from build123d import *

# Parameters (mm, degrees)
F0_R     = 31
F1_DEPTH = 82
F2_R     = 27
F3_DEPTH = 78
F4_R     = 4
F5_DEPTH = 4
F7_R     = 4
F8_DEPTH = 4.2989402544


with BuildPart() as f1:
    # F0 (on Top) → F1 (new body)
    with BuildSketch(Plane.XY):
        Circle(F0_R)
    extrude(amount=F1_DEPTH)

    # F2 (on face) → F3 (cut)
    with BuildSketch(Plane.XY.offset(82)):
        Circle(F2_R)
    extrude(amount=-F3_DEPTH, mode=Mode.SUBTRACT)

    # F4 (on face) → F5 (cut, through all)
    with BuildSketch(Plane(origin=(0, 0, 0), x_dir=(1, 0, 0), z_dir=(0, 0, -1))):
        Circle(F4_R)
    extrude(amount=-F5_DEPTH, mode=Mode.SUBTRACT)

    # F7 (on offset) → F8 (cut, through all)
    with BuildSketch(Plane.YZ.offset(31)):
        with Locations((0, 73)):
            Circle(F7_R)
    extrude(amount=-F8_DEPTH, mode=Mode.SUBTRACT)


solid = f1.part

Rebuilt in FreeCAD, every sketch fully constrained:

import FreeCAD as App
import Part
import Sketcher

doc = App.newDocument("Part")
body = doc.addObject("PartDesign::Body", "Body")

# Sketch on XY plane
sketch1 = doc.addObject("Sketcher::SketchObject", "Sketch")
body.addObject(sketch1)
sketch1.AttachmentSupport = (doc.XY_Plane, [""])
sketch1.MapMode = "FlatFace"
sketch1.addGeometry(Part.Circle(App.Vector(0, 0, 0), App.Vector(0, 0, 1), 31), False)
sketch1.addConstraint([
    Sketcher.Constraint("Coincident", 0, 3, -1, 1),
    Sketcher.Constraint("Diameter", 0, 62.0),
])
pad1 = doc.addObject("PartDesign::Pad", "Pad")
body.addObject(pad1)
pad1.Profile = sketch1
pad1.Length = 82

# Sketch on XY plane
sketch2 = doc.addObject("Sketcher::SketchObject", "Sketch001")
body.addObject(sketch2)
sketch2.AttachmentSupport = (doc.XY_Plane, [""])
sketch2.MapMode = "FlatFace"
sketch2.AttachmentOffset = App.Placement(App.Vector(0, 0, 82), App.Rotation())
sketch2.addGeometry(Part.Circle(App.Vector(0, 0, 0), App.Vector(0, 0, 1), 27), False)
sketch2.addConstraint([
    Sketcher.Constraint("Coincident", 0, 3, -1, 1),
    Sketcher.Constraint("Diameter", 0, 54.0),
])
pocket1 = doc.addObject("PartDesign::Pocket", "Pocket")
body.addObject(pocket1)
pocket1.Profile = sketch2
pocket1.Length = 78

# Sketch on XY plane
sketch3 = doc.addObject("Sketcher::SketchObject", "Sketch002")
body.addObject(sketch3)
sketch3.AttachmentSupport = (doc.XY_Plane, [""])
sketch3.MapMode = "FlatFace"
sketch3.addGeometry(Part.Circle(App.Vector(0, 0, 0), App.Vector(0, 0, 1), 4), False)
sketch3.addConstraint([
    Sketcher.Constraint("Coincident", 0, 3, -1, 1),
    Sketcher.Constraint("Diameter", 0, 8.0),
])
pocket2 = doc.addObject("PartDesign::Pocket", "Pocket001")
body.addObject(pocket2)
pocket2.Profile = sketch3
pocket2.Type = "ThroughAll"
pocket2.Reversed = True

# Sketch on YZ plane
sketch4 = doc.addObject("Sketcher::SketchObject", "Sketch003")
body.addObject(sketch4)
sketch4.AttachmentSupport = (doc.YZ_Plane, [""])
sketch4.MapMode = "FlatFace"
sketch4.AttachmentOffset = App.Placement(App.Vector(0, 0, 31), App.Rotation())
sketch4.addGeometry(Part.Circle(App.Vector(0, 73, 0), App.Vector(0, 0, 1), 4), False)
sketch4.addConstraint([
    Sketcher.Constraint("PointOnObject", 0, 3, -2),
    Sketcher.Constraint("Diameter", 0, 8.0),
    Sketcher.Constraint("DistanceY", -1, 1, 0, 3, 73.0),
])
pocket3 = doc.addObject("PartDesign::Pocket", "Pocket002")
body.addObject(pocket3)
pocket3.Profile = sketch4
pocket3.Length = 4.29894

doc.recompute()
